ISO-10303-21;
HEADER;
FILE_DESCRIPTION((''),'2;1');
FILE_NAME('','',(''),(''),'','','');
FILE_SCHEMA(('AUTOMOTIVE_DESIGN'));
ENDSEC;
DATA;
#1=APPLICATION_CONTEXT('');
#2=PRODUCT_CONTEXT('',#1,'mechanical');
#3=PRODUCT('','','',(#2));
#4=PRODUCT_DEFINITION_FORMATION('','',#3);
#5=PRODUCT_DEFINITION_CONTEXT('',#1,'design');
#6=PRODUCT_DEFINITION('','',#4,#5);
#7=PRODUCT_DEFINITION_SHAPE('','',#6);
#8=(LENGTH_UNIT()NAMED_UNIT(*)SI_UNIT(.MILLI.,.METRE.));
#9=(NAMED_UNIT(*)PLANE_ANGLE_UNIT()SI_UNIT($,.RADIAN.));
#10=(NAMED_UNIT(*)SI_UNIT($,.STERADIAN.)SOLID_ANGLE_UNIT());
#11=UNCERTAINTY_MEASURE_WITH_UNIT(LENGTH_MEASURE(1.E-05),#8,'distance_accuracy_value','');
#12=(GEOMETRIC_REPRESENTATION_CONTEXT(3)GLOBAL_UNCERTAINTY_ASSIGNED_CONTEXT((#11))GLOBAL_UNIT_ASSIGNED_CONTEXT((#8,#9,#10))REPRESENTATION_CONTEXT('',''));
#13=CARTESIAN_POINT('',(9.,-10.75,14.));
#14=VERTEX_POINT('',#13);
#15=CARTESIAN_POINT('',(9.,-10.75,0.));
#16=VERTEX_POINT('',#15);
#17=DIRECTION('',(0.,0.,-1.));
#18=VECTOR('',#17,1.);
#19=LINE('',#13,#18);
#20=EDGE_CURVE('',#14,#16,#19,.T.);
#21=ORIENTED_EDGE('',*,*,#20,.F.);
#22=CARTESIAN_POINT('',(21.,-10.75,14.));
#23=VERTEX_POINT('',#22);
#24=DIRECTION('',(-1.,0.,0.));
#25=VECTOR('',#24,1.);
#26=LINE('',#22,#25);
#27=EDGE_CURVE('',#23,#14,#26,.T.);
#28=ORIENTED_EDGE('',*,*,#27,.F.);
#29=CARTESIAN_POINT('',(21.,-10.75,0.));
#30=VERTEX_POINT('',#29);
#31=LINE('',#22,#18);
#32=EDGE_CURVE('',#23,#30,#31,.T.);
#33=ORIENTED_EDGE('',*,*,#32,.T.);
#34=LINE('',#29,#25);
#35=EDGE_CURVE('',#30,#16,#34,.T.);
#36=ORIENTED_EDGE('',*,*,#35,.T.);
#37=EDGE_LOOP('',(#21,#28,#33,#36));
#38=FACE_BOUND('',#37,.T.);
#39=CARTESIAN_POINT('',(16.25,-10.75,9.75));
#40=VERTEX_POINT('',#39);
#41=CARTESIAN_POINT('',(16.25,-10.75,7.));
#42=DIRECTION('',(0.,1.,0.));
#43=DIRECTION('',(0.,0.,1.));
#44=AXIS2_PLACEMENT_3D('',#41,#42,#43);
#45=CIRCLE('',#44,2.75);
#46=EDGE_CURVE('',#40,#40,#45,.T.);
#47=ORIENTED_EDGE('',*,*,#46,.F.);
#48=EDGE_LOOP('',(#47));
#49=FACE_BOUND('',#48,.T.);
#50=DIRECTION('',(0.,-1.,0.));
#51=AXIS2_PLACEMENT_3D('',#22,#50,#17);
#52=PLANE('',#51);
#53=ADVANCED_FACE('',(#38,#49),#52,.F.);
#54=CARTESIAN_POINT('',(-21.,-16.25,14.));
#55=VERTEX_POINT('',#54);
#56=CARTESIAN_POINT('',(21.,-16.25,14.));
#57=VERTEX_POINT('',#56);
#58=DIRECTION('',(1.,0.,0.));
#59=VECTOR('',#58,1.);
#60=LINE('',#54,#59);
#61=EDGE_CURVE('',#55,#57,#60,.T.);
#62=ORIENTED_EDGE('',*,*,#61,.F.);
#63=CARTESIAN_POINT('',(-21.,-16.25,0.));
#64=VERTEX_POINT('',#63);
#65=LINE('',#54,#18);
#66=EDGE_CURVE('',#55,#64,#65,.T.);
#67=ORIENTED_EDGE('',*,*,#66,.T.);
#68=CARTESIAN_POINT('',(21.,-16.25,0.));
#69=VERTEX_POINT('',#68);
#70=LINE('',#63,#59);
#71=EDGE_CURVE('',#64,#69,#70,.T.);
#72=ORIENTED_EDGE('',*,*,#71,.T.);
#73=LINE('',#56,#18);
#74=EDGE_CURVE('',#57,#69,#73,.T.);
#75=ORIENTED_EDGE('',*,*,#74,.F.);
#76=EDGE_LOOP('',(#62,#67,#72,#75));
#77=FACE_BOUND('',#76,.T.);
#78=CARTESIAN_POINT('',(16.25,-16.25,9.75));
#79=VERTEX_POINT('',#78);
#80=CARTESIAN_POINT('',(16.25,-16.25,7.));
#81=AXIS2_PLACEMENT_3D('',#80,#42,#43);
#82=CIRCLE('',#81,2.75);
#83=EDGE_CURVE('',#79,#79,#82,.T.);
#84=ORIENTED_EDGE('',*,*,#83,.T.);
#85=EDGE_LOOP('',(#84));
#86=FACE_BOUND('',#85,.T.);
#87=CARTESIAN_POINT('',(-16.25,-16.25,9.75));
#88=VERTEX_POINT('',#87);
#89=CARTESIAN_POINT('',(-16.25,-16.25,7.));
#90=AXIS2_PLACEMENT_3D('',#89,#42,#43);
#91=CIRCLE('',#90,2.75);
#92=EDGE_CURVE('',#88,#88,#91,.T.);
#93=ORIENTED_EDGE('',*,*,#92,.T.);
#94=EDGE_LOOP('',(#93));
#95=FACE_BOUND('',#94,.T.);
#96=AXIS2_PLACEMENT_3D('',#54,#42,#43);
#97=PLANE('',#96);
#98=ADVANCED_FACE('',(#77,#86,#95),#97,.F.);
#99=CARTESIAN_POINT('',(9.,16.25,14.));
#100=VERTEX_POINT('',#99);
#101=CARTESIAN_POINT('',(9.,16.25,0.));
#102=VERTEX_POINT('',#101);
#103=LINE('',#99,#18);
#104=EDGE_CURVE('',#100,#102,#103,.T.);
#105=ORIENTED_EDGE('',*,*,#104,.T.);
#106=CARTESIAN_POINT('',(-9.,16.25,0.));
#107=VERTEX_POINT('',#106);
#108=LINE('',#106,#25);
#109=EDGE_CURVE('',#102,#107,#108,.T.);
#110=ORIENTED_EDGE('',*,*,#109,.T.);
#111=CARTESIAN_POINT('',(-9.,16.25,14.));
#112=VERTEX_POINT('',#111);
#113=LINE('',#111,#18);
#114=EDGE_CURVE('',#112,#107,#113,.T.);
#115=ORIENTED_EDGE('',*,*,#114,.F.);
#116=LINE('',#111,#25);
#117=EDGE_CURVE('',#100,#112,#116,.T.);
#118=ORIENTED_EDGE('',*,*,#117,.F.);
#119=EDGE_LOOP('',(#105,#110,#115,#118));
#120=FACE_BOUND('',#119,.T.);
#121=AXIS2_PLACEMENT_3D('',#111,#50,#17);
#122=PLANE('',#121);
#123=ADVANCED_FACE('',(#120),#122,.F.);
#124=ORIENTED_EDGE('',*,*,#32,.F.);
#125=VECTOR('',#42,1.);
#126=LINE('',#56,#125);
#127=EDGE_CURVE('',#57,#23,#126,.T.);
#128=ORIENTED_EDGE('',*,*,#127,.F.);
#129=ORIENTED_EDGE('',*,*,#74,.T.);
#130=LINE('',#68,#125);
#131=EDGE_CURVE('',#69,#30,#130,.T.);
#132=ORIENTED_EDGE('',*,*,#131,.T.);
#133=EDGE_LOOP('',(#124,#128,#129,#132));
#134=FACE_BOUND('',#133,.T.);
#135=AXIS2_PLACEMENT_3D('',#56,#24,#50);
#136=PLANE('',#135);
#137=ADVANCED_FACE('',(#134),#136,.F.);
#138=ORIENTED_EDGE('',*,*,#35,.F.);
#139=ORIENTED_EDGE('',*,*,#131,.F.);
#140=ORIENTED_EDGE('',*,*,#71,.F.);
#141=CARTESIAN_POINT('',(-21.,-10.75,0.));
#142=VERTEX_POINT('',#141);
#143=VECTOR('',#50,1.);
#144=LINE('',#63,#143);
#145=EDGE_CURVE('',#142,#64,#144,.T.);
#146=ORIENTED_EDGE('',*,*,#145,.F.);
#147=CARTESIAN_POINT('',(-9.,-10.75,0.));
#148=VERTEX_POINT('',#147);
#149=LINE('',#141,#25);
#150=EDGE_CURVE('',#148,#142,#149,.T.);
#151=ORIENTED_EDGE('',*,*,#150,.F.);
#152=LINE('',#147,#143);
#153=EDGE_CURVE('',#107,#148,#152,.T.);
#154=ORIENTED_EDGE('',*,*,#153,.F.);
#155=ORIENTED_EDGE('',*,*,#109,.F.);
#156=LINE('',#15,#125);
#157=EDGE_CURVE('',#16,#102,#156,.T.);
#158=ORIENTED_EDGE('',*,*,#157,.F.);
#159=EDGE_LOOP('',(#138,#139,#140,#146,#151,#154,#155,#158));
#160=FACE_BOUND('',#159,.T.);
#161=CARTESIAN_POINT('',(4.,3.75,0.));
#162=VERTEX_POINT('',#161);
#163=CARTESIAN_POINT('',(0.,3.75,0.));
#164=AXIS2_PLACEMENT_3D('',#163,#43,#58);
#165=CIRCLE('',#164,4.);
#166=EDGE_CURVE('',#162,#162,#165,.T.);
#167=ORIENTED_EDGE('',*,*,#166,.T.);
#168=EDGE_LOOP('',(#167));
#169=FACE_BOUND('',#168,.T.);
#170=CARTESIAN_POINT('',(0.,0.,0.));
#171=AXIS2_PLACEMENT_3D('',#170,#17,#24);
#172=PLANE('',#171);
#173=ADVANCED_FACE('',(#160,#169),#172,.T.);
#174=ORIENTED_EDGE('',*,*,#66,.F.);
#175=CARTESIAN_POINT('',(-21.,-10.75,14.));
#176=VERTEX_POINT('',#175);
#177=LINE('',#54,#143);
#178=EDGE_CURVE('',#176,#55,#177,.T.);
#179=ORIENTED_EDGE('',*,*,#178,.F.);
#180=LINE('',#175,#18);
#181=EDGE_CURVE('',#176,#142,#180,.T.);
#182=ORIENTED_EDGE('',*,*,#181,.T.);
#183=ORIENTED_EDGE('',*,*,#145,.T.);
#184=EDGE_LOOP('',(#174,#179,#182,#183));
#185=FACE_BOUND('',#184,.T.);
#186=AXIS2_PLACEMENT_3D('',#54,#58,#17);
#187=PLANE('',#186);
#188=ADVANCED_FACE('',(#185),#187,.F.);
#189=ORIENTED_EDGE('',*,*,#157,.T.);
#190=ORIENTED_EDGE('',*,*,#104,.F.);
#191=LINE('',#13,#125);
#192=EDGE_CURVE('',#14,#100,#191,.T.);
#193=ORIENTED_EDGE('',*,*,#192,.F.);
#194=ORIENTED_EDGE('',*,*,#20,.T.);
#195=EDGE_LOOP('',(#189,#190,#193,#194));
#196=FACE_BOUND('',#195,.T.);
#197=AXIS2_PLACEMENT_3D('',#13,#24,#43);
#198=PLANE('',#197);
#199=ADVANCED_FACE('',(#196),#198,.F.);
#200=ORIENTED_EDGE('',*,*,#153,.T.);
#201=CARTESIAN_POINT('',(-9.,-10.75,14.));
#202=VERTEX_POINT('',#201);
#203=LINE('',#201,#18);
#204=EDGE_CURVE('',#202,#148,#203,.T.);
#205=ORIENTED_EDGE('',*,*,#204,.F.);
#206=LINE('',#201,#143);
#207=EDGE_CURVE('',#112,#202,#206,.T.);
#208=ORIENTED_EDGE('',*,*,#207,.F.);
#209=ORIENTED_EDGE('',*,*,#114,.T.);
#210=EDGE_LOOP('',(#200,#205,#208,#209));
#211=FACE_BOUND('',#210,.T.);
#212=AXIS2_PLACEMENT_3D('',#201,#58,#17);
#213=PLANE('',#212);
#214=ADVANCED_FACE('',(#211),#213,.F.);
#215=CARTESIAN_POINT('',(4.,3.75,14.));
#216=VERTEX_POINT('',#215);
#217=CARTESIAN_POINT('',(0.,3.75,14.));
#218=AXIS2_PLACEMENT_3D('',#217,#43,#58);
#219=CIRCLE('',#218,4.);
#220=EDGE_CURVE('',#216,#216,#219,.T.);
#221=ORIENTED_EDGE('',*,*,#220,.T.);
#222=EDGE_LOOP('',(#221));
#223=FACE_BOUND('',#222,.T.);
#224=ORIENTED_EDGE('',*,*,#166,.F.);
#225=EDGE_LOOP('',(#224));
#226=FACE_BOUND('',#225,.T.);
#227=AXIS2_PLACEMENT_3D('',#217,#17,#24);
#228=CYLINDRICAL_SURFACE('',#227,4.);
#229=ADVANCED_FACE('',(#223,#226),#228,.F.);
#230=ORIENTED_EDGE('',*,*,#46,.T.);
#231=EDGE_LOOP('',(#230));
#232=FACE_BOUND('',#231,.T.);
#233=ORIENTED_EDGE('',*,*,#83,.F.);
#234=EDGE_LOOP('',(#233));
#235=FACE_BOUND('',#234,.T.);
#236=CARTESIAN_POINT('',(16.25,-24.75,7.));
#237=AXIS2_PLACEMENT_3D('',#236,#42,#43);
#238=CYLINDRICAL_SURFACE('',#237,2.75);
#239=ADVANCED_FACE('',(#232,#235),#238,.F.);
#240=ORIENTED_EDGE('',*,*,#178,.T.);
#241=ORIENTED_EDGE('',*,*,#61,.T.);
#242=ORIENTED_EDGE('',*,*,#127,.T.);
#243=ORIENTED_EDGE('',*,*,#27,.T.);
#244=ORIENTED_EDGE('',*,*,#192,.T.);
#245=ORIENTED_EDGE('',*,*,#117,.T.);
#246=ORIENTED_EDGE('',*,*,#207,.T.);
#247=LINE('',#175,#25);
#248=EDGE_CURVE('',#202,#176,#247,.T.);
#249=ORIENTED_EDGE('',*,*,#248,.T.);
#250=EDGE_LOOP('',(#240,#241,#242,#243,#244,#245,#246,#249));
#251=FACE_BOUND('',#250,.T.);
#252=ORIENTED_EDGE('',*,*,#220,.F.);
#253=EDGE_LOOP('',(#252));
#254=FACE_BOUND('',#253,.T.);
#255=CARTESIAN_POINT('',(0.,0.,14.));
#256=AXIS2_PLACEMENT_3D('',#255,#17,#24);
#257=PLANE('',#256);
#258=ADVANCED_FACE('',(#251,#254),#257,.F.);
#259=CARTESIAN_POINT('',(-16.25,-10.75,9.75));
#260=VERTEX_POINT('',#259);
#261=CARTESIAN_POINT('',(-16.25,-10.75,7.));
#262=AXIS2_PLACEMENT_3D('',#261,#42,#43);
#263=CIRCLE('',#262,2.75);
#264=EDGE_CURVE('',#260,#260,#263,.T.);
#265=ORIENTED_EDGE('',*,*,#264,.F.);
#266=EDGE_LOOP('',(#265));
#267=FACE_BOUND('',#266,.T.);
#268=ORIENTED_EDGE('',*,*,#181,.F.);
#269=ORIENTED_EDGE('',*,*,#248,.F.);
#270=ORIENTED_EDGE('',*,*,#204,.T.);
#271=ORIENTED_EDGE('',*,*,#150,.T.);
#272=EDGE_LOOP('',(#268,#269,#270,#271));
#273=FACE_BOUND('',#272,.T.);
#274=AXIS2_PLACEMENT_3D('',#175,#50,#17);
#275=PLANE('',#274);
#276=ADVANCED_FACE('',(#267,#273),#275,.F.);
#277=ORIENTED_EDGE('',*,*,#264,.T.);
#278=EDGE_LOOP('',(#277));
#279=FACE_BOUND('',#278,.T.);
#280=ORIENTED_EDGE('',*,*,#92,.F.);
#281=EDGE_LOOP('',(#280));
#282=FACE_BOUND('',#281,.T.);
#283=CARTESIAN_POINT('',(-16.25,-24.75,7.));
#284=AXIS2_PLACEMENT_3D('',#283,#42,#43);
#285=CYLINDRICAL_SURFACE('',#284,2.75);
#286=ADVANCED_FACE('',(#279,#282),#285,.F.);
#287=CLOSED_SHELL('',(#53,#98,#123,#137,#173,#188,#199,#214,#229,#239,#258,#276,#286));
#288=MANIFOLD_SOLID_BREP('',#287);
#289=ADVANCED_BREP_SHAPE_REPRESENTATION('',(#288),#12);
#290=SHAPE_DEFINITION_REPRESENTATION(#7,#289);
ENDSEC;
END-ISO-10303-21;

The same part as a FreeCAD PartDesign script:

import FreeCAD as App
import Part
import Sketcher
Q = App.Units.Quantity

doc = App.newDocument("Part")
body = doc.addObject("PartDesign::Body", "Body")

# Sketch on XY plane
sketch1 = body.newObject("Sketcher::SketchObject", "Sketch")
sketch1.AttachmentSupport = (doc.getObject("XY_Plane"), [""])
sketch1.MapMode = "FlatFace"
sketch1.addGeometry(Part.LineSegment(App.Vector(-9, -10.8, 0), App.Vector(-21, -10.8, 0)), False)
sketch1.addGeometry(Part.LineSegment(App.Vector(-21, -10.8, 0), App.Vector(-21, -16.2, 0)), False)
sketch1.addGeometry(Part.LineSegment(App.Vector(-21, -16.2, 0), App.Vector(21, -16.2, 0)), False)
sketch1.addGeometry(Part.LineSegment(App.Vector(21, -16.2, 0), App.Vector(21, -10.8, 0)), False)
sketch1.addGeometry(Part.LineSegment(App.Vector(21, -10.8, 0), App.Vector(9, -10.8, 0)), False)
sketch1.addGeometry(Part.LineSegment(App.Vector(9, -10.8, 0), App.Vector(9, 16.2, 0)), False)
sketch1.addGeometry(Part.LineSegment(App.Vector(9, 16.2, 0), App.Vector(-9, 16.2, 0)), False)
sketch1.addGeometry(Part.LineSegment(App.Vector(-9, 16.2, 0), App.Vector(-9, -10.8, 0)), False)
sketch1.addGeometry(Part.Circle(App.Vector(0, 3.8, 0), App.Vector(0, 0, 1), 4), False)
sketch1.addConstraint(Sketcher.Constraint("Coincident", 0, 2, 1, 1))
sketch1.addConstraint(Sketcher.Constraint("Coincident", 1, 2, 2, 1))
sketch1.addConstraint(Sketcher.Constraint("Coincident", 2, 2, 3, 1))
sketch1.addConstraint(Sketcher.Constraint("Coincident", 3, 2, 4, 1))
sketch1.addConstraint(Sketcher.Constraint("Coincident", 4, 2, 5, 1))
sketch1.addConstraint(Sketcher.Constraint("Coincident", 5, 2, 6, 1))
sketch1.addConstraint(Sketcher.Constraint("Coincident", 6, 2, 7, 1))
sketch1.addConstraint(Sketcher.Constraint("Coincident", 7, 2, 0, 1))
sketch1.addConstraint(Sketcher.Constraint("Horizontal", 0))
sketch1.addConstraint(Sketcher.Constraint("Vertical", 1))
sketch1.addConstraint(Sketcher.Constraint("Horizontal", 2))
sketch1.addConstraint(Sketcher.Constraint("Vertical", 3))
sketch1.addConstraint(Sketcher.Constraint("Horizontal", 4))
sketch1.addConstraint(Sketcher.Constraint("Vertical", 5))
sketch1.addConstraint(Sketcher.Constraint("Horizontal", 6))
sketch1.addConstraint(Sketcher.Constraint("Vertical", 7))
sketch1.addConstraint(Sketcher.Constraint("Symmetric", 0, 2, 3, 2, -2))
sketch1.addConstraint(Sketcher.Constraint("PointOnObject", 8, 3, -2))
sketch1.addConstraint(Sketcher.Constraint("Equal", 0, 4))
sketch1.addConstraint(Sketcher.Constraint("Diameter", 8, Q("8 mm")))
sketch1.addConstraint(Sketcher.Constraint("DistanceX", 0, 2, 0, 1, Q("12 mm")))
sketch1.addConstraint(Sketcher.Constraint("DistanceX", 2, 1, 2, 2, Q("42 mm")))
sketch1.addConstraint(Sketcher.Constraint("DistanceY", 5, 1, 5, 2, Q("27 mm")))
sketch1.addConstraint(Sketcher.Constraint("DistanceY", 1, 2, 1, 1, Q("5.5 mm")))
sketch1.addConstraint(Sketcher.Constraint("DistanceY", 1, 2, 8, 3, Q("20 mm")))
sketch1.addConstraint(Sketcher.Constraint("DistanceY", -1, 1, 8, 3, Q("3.75 mm")))
pad1 = body.newObject("PartDesign::Pad", "Pad")
pad1.Profile = sketch1
pad1.Length = 14

# Sketch on XZ plane
sketch2 = body.newObject("Sketcher::SketchObject", "Sketch001")
sketch2.AttachmentSupport = (doc.getObject("XZ_Plane"), [""])
sketch2.MapMode = "FlatFace"
sketch2.AttachmentOffset = App.Placement(App.Vector(0, 0, 10.75), App.Rotation())
sketch2.addGeometry(Part.Circle(App.Vector(-16.2, 7, 0), App.Vector(0, 0, 1), 2.8), False)
sketch2.addGeometry(Part.Circle(App.Vector(16.2, 7, 0), App.Vector(0, 0, 1), 2.8), False)
sketch2.addConstraint(Sketcher.Constraint("Equal", 0, 1))
sketch2.addConstraint(Sketcher.Constraint("Symmetric", 0, 3, 1, 3, -2))
sketch2.addConstraint(Sketcher.Constraint("Diameter", 0, Q("5.5 mm")))
sketch2.addConstraint(Sketcher.Constraint("DistanceY", -1, 1, 0, 3, Q("7 mm")))
sketch2.addConstraint(Sketcher.Constraint("DistanceX", 0, 3, 1, 3, Q("32.5 mm")))
pocket1 = body.newObject("PartDesign::Pocket", "Pocket")
pocket1.Profile = sketch2
pocket1.Length = 14
pocket1.Reversed = True

doc.recompute()
